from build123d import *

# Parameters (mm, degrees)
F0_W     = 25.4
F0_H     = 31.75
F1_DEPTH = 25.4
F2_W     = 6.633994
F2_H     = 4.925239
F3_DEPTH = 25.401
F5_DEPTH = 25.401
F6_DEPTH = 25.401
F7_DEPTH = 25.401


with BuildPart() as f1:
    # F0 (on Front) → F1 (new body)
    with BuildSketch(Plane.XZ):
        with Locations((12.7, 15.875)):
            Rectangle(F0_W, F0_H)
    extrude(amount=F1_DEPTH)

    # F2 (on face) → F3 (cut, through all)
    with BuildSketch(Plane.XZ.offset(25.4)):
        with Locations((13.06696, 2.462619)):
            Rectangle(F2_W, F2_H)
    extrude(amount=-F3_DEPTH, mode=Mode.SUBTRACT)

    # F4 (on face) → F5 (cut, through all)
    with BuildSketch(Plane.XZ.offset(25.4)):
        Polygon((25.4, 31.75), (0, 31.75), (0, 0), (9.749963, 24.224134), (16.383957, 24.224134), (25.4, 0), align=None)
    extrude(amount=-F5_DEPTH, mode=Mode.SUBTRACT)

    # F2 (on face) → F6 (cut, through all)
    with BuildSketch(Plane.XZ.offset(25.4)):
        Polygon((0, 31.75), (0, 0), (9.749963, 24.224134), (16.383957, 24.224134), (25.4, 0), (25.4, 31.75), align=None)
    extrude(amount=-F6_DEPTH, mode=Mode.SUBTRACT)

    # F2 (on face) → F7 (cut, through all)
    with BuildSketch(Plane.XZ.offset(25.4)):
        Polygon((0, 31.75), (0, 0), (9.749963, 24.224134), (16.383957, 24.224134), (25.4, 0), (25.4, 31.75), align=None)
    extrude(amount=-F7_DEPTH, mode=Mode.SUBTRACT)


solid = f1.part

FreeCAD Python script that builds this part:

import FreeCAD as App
import Part
import Sketcher
Q = App.Units.Quantity

doc = App.newDocument("Part")
body = doc.addObject("PartDesign::Body", "Body")

# Sketch on XZ plane
sketch1 = body.newObject("Sketcher::SketchObject", "Sketch")
sketch1.AttachmentSupport = (doc.getObject("XZ_Plane"), [""])
sketch1.MapMode = "FlatFace"
sketch1.addGeometry([
    Part.LineSegment(App.Vector(0, 32, 0), App.Vector(0, 0, 0)),
    Part.LineSegment(App.Vector(0, 0, 0), App.Vector(25, 0, 0)),
    Part.LineSegment(App.Vector(25, 0, 0), App.Vector(25, 32, 0)),
    Part.LineSegment(App.Vector(25, 32, 0), App.Vector(0, 32, 0)),
], False)
sketch1.addConstraint([
    Sketcher.Constraint("Coincident", 0, 2, 1, 1),
    Sketcher.Constraint("Coincident", 1, 2, 2, 1),
    Sketcher.Constraint("Coincident", 2, 2, 3, 1),
    Sketcher.Constraint("Coincident", 3, 2, 0, 1),
    Sketcher.Constraint("Vertical", 0),
    Sketcher.Constraint("Horizontal", 1),
    Sketcher.Constraint("Vertical", 2),
    Sketcher.Constraint("Horizontal", 3),
    Sketcher.Constraint("Coincident", 0, 2, -1, 1),
    Sketcher.Constraint("DistanceX", 1, 1, 1, 2, Q("1 in")),
    Sketcher.Constraint("DistanceY", 0, 2, 0, 1, Q("1.25 in")),
])
pad1 = body.newObject("PartDesign::Pad", "Pad")
pad1.Profile = sketch1
pad1.Length = Q("1 in")

# Sketch on XZ plane
sketch2 = body.newObject("Sketcher::SketchObject", "Sketch001")
sketch2.AttachmentSupport = (doc.getObject("XZ_Plane"), [""])
sketch2.MapMode = "FlatFace"
sketch2.AttachmentOffset = App.Placement(App.Vector(0, 0, 1 * 25.4), App.Rotation())
sketch2.addGeometry([
    Part.LineSegment(App.Vector(9.7, 4.9, 0), App.Vector(9.7, 0, 0)),
    Part.LineSegment(App.Vector(9.7, 0, 0), App.Vector(16.4, 0, 0)),
    Part.LineSegment(App.Vector(16.4, 0, 0), App.Vector(16.4, 4.9, 0)),
    Part.LineSegment(App.Vector(16.4, 4.9, 0), App.Vector(9.7, 4.9, 0)),
], False)
sketch2.addConstraint([
    Sketcher.Constraint("Coincident", 0, 2, 1, 1),
    Sketcher.Constraint("Coincident", 1, 2, 2, 1),
    Sketcher.Constraint("Coincident", 2, 2, 3, 1),
    Sketcher.Constraint("Coincident", 3, 2, 0, 1),
    Sketcher.Constraint("Vertical", 0),
    Sketcher.Constraint("Horizontal", 1),
    Sketcher.Constraint("Vertical", 2),
    Sketcher.Constraint("Horizontal", 3),
    Sketcher.Constraint("PointOnObject", 0, 2, -1),
    Sketcher.Constraint("DistanceY", 0, 2, 0, 1, Q("4.925239 mm")),
    Sketcher.Constraint("DistanceX", 1, 1, 1, 2, Q("6.633994 mm")),
    Sketcher.Constraint("DistanceX", -1, 1, 0, 2, Q("9.749963 mm")),
])
pocket1 = body.newObject("PartDesign::Pocket", "Pocket")
pocket1.Profile = sketch2
pocket1.Type = "ThroughAll"

# Sketch on XZ plane
sketch3 = body.newObject("Sketcher::SketchObject", "Sketch002")
sketch3.AttachmentSupport = (doc.getObject("XZ_Plane"), [""])
sketch3.MapMode = "FlatFace"
sketch3.AttachmentOffset = App.Placement(App.Vector(0, 0, 1 * 25.4), App.Rotation())
sketch3.addGeometry([
    Part.LineSegment(App.Vector(25, 32, 0), App.Vector(0, 32, 0)),  # 0
    Part.LineSegment(App.Vector(0, 32, 0), App.Vector(0, 0, 0)),  # 1
    Part.LineSegment(App.Vector(0, 0, 0), App.Vector(10, 24, 0)),  # 2
    Part.LineSegment(App.Vector(10, 24, 0), App.Vector(16, 24, 0)),  # 3
    Part.LineSegment(App.Vector(16, 24, 0), App.Vector(25, 0, 0)),  # 4
    Part.LineSegment(App.Vector(25, 0, 0), App.Vector(25, 32, 0)),  # 5
], False)
sketch3.addConstraint([
    Sketcher.Constraint("Coincident", 0, 2, 1, 1),
    Sketcher.Constraint("Coincident", 1, 2, 2, 1),
    Sketcher.Constraint("Coincident", 2, 2, 3, 1),
    Sketcher.Constraint("Coincident", 3, 2, 4, 1),
    Sketcher.Constraint("Coincident", 4, 2, 5, 1),
    Sketcher.Constraint("Coincident", 5, 2, 0, 1),
    Sketcher.Constraint("Horizontal", 0),
    Sketcher.Constraint("Vertical", 1),
    Sketcher.Constraint("Horizontal", 3),
    Sketcher.Constraint("Vertical", 5),
    Sketcher.Constraint("Coincident", 1, 2, -1, 1),
    Sketcher.Constraint("PointOnObject", 4, 2, -1),
    Sketcher.Constraint("DistanceX", 0, 2, 0, 1, Q("1 in")),
    Sketcher.Constraint("DistanceY", 1, 2, 1, 1, Q("1.25 in")),
    Sketcher.Constraint("Distance", 2, Q("26.112649 mm")),
    Sketcher.Constraint("DistanceX", 3, 1, 3, 2, Q("6.633994 mm")),
    Sketcher.Constraint("Distance", 4, Q("25.847586 mm")),
])
pocket2 = body.newObject("PartDesign::Pocket", "Pocket001")
pocket2.Profile = sketch3
pocket2.Type = "ThroughAll"

# Sketch on XZ plane
sketch4 = body.newObject("Sketcher::SketchObject", "Sketch003")
sketch4.AttachmentSupport = (doc.getObject("XZ_Plane"), [""])
sketch4.MapMode = "FlatFace"
sketch4.AttachmentOffset = App.Placement(App.Vector(0, 0, 1 * 25.4), App.Rotation())
sketch4.addGeometry([
    Part.LineSegment(App.Vector(0, 32, 0), App.Vector(0, 0, 0)),  # 0
    Part.LineSegment(App.Vector(0, 0, 0), App.Vector(10, 24, 0)),  # 1
    Part.LineSegment(App.Vector(10, 24, 0), App.Vector(16, 24, 0)),  # 2
    Part.LineSegment(App.Vector(16, 24, 0), App.Vector(25, 0, 0)),  # 3
    Part.LineSegment(App.Vector(25, 0, 0), App.Vector(25, 32, 0)),  # 4
    Part.LineSegment(App.Vector(25, 32, 0), App.Vector(0, 32, 0)),  # 5
], False)
sketch4.addConstraint([
    Sketcher.Constraint("Coincident", 0, 2, 1, 1),
    Sketcher.Constraint("Coincident", 1, 2, 2, 1),
    Sketcher.Constraint("Coincident", 2, 2, 3, 1),
    Sketcher.Constraint("Coincident", 3, 2, 4, 1),
    Sketcher.Constraint("Coincident", 4, 2, 5, 1),
    Sketcher.Constraint("Coincident", 5, 2, 0, 1),
    Sketcher.Constraint("Vertical", 0),
    Sketcher.Constraint("Horizontal", 2),
    Sketcher.Constraint("Vertical", 4),
    Sketcher.Constraint("Horizontal", 5),
    Sketcher.Constraint("Coincident", 0, 2, -1, 1),
    Sketcher.Constraint("PointOnObject", 3, 2, -1),
    Sketcher.Constraint("DistanceX", 5, 2, 5, 1, Q("1 in")),
    Sketcher.Constraint("DistanceY", 0, 2, 0, 1, Q("1.25 in")),
    Sketcher.Constraint("Distance", 1, Q("26.112649 mm")),
    Sketcher.Constraint("DistanceX", 2, 1, 2, 2, Q("6.633994 mm")),
    Sketcher.Constraint("Distance", 3, Q("25.847586 mm")),
])
pocket3 = body.newObject("PartDesign::Pocket", "Pocket002")
pocket3.Profile = sketch4
pocket3.Type = "ThroughAll"

# Sketch on XZ plane
sketch5 = body.newObject("Sketcher::SketchObject", "Sketch004")
sketch5.AttachmentSupport = (doc.getObject("XZ_Plane"), [""])
sketch5.MapMode = "FlatFace"
sketch5.AttachmentOffset = App.Placement(App.Vector(0, 0, 1 * 25.4), App.Rotation())
sketch5.addGeometry([
    Part.LineSegment(App.Vector(0, 32, 0), App.Vector(0, 0, 0)),  # 0
    Part.LineSegment(App.Vector(0, 0, 0), App.Vector(10, 24, 0)),  # 1
    Part.LineSegment(App.Vector(10, 24, 0), App.Vector(16, 24, 0)),  # 2
    Part.LineSegment(App.Vector(16, 24, 0), App.Vector(25, 0, 0)),  # 3
    Part.LineSegment(App.Vector(25, 0, 0), App.Vector(25, 32, 0)),  # 4
    Part.LineSegment(App.Vector(25, 32, 0), App.Vector(0, 32, 0)),  # 5
], False)
sketch5.addConstraint([
    Sketcher.Constraint("Coincident", 0, 2, 1, 1),
    Sketcher.Constraint("Coincident", 1, 2, 2, 1),
    Sketcher.Constraint("Coincident", 2, 2, 3, 1),
    Sketcher.Constraint("Coincident", 3, 2, 4, 1),
    Sketcher.Constraint("Coincident", 4, 2, 5, 1),
    Sketcher.Constraint("Coincident", 5, 2, 0, 1),
    Sketcher.Constraint("Vertical", 0),
    Sketcher.Constraint("Horizontal", 2),
    Sketcher.Constraint("Vertical", 4),
    Sketcher.Constraint("Horizontal", 5),
    Sketcher.Constraint("Coincident", 0, 2, -1, 1),
    Sketcher.Constraint("PointOnObject", 3, 2, -1),
    Sketcher.Constraint("DistanceX", 5, 2, 5, 1, Q("1 in")),
    Sketcher.Constraint("DistanceY", 0, 2, 0, 1, Q("1.25 in")),
    Sketcher.Constraint("Distance", 1, Q("26.112649 mm")),
    Sketcher.Constraint("DistanceX", 2, 1, 2, 2, Q("6.633994 mm")),
    Sketcher.Constraint("Distance", 3, Q("25.847586 mm")),
])
pocket4 = body.newObject("PartDesign::Pocket", "Pocket003")
pocket4.Profile = sketch5
pocket4.Type = "ThroughAll"

doc.recompute()
